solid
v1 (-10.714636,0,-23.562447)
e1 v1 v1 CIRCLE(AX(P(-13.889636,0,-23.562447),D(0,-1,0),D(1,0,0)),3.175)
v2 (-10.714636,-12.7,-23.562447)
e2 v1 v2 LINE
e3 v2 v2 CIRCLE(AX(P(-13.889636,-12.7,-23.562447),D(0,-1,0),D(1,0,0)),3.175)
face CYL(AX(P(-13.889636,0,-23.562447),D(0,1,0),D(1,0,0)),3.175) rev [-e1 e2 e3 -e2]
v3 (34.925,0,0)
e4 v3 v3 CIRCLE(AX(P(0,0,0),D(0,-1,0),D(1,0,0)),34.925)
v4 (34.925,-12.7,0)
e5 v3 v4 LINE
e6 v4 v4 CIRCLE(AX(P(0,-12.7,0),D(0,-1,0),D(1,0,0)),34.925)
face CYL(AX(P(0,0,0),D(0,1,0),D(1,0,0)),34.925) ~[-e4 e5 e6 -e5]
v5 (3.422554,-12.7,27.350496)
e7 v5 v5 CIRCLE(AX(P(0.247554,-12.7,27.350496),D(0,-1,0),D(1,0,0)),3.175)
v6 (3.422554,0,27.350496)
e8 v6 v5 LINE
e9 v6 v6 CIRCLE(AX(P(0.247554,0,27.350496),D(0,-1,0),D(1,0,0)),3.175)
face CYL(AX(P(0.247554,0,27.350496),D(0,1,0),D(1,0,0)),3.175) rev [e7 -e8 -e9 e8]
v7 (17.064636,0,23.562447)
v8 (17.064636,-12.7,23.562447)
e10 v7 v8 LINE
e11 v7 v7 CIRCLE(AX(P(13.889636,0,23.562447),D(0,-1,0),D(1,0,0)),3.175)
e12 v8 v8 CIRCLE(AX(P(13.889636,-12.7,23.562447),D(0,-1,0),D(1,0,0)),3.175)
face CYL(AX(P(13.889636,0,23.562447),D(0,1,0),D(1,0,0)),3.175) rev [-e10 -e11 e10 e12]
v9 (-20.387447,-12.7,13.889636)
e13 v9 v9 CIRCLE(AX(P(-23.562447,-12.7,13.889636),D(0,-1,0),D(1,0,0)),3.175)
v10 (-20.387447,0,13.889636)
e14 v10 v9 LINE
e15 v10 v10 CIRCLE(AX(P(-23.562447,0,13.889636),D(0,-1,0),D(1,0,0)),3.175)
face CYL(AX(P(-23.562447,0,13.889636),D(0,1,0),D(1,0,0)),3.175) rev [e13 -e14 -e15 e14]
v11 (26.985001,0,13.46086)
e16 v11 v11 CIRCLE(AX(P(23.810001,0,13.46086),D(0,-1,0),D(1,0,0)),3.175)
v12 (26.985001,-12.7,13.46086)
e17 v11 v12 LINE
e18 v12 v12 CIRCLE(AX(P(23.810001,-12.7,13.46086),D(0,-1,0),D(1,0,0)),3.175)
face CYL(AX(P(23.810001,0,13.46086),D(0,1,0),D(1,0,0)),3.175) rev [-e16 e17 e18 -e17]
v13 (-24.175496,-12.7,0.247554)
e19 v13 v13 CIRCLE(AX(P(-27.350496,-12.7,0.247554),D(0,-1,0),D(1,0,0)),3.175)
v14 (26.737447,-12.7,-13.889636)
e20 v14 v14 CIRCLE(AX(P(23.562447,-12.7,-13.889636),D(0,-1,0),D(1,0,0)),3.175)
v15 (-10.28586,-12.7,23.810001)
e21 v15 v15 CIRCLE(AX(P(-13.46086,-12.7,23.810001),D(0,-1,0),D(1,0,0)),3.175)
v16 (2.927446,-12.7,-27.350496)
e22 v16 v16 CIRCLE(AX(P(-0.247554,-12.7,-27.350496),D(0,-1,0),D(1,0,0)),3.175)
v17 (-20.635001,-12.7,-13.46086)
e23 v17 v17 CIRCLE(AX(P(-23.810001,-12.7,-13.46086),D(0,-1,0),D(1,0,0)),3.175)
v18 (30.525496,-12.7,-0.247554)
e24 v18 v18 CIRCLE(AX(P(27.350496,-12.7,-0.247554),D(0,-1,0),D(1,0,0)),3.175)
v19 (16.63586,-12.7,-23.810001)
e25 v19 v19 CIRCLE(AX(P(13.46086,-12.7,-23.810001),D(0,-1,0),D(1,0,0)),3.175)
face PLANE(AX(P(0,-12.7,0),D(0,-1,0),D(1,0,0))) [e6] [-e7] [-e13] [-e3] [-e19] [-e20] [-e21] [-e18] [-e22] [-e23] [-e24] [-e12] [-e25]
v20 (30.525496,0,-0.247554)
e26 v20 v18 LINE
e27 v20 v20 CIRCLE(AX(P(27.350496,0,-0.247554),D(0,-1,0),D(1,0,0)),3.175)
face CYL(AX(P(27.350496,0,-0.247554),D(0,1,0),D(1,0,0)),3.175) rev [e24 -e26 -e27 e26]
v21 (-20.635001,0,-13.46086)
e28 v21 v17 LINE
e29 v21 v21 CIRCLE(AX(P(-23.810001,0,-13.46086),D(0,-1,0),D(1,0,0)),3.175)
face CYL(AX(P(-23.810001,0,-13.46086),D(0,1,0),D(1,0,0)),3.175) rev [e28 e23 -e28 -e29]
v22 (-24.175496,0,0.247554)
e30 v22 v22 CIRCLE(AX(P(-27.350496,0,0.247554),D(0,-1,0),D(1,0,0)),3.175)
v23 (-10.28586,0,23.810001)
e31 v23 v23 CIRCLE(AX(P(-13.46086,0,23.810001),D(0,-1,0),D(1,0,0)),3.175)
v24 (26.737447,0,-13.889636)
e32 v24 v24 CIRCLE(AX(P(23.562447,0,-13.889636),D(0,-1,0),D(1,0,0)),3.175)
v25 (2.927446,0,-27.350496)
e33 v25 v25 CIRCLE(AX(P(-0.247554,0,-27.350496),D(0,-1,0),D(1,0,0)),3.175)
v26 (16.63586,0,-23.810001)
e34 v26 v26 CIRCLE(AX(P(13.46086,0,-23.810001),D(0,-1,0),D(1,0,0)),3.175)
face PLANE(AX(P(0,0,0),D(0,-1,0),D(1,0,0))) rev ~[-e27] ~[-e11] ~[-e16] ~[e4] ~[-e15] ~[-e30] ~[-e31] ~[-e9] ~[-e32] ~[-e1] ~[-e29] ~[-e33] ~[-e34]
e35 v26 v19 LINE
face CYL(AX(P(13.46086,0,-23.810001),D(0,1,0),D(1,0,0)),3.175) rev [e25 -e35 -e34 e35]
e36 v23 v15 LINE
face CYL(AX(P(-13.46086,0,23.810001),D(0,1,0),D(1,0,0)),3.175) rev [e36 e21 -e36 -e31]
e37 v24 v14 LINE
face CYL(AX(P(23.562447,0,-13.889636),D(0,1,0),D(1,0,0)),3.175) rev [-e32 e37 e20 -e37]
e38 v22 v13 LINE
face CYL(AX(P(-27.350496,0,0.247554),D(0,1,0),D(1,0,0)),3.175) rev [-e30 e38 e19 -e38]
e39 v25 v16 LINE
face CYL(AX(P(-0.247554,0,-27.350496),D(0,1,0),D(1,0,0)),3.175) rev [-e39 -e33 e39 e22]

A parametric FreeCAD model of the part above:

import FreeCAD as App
import Part
import Sketcher

V = App.Vector
Q = App.Units.Quantity

doc = App.newDocument("Part")
params = doc.addObject("Spreadsheet::Sheet", "Params")
for row, (alias, value) in enumerate([
    ("sketch1_diameter", "2.75 in"),
    ("sketch1_diameter2", "0.25 in"),
    ("pad1_length", "0.5 in"),
], start=1):
    params.set(f"A{row}", alias)
    params.set(f"B{row}", "=" + value)
    params.setAlias(f"B{row}", alias)

body = doc.addObject("PartDesign::Body", "Body")

# Sketch on XZ plane
sketch1 = body.newObject("Sketcher::SketchObject", "Sketch")
sketch1.AttachmentSupport = (doc.getObject("XZ_Plane"), [""])
sketch1.MapMode = "FlatFace"
sketch1.addGeometry([
    Part.Circle(V(0, 0, 0), V(0, 0, 1), 34.9),  # 0
    Part.Circle(V(-13.9, -23.6, 0), V(0, 0, 1), 3.2),  # 1
    Part.Circle(V(-0.2, -27.4, 0), V(0, 0, 1), 3.2),  # 2
    Part.Circle(V(-23.8, -13.5, 0), V(0, 0, 1), 3.2),  # 3
    Part.Circle(V(13.5, -23.8, 0), V(0, 0, 1), 3.2),  # 4
    Part.Circle(V(23.6, -13.9, 0), V(0, 0, 1), 3.2),  # 5
    Part.Circle(V(27.4, -0.2, 0), V(0, 0, 1), 3.2),  # 6
    Part.Circle(V(-27.4, 0.2, 0), V(0, 0, 1), 3.2),  # 7
    Part.Circle(V(-23.6, 13.9, 0), V(0, 0, 1), 3.2),  # 8
    Part.Circle(V(-13.5, 23.8, 0), V(0, 0, 1), 3.2),  # 9
    Part.Circle(V(23.8, 13.5, 0), V(0, 0, 1), 3.2),  # 10
    Part.Circle(V(0.2, 27.4, 0), V(0, 0, 1), 3.2),  # 11
    Part.Circle(V(13.9, 23.6, 0), V(0, 0, 1), 3.2),  # 12
], False)
sketch1.addConstraint([
    Sketcher.Constraint("Coincident", 0, 3, -1, 1),
    Sketcher.Constraint("Equal", 1, 2),
    Sketcher.Constraint("Equal", 2, 3),
    Sketcher.Constraint("Equal", 3, 4),
    Sketcher.Constraint("Equal", 4, 5),
    Sketcher.Constraint("Equal", 5, 6),
    Sketcher.Constraint("Equal", 6, 7),
    Sketcher.Constraint("Equal", 7, 8),
    Sketcher.Constraint("Equal", 8, 9),
    Sketcher.Constraint("Equal", 9, 10),
    Sketcher.Constraint("Equal", 10, 11),
    Sketcher.Constraint("Equal", 11, 12),
    Sketcher.Constraint("Symmetric", 6, 3, 7, 3, -1, 1),
    Sketcher.Constraint("Symmetric", 5, 3, 8, 3, -1, 1),
    Sketcher.Constraint("Symmetric", 4, 3, 9, 3, -1, 1),
    Sketcher.Constraint("Symmetric", 3, 3, 10, 3, -1, 1),
    Sketcher.Constraint("Symmetric", 2, 3, 11, 3, -1, 1),
    Sketcher.Constraint("Symmetric", 1, 3, 12, 3, -1, 1),
    Sketcher.Constraint("Diameter", 0, Q("2.75 in")),
    Sketcher.Constraint("Diameter", 1, Q("0.25 in")),
    Sketcher.Constraint("DistanceX", 3, 3, -1, 1, 23.810001),
    Sketcher.Constraint("DistanceY", 4, 3, -1, 1, 23.810001),
    Sketcher.Constraint("DistanceX", 2, 3, 5, 3, 23.810001),
    Sketcher.Constraint("DistanceY", 1, 3, 7, 3, 23.810001),
    Sketcher.Constraint("DistanceY", 3, 3, -1, 1, 13.46086),
    Sketcher.Constraint("DistanceX", -1, 1, 4, 3, 13.46086),
    Sketcher.Constraint("DistanceY", 2, 3, 1, 3, 3.788049),
    Sketcher.Constraint("DistanceY", 2, 3, 5, 3, 13.46086),
    Sketcher.Constraint("DistanceX", 5, 3, 6, 3, 3.788049),
    Sketcher.Constraint("DistanceY", 2, 3, 6, 3, 27.102942),
    Sketcher.Constraint("DistanceX", 7, 3, 1, 3, 13.46086),
    Sketcher.Constraint("DistanceX", 7, 3, 2, 3, 27.102942),
])
sketch1.setExpression("Constraints[18]", "Params.sketch1_diameter")
sketch1.setExpression("Constraints[19]", "Params.sketch1_diameter2")
pad1 = body.newObject("PartDesign::Pad", "Pad")
pad1.Profile = sketch1
pad1.setExpression("Length", "Params.pad1_length")

doc.recompute()
